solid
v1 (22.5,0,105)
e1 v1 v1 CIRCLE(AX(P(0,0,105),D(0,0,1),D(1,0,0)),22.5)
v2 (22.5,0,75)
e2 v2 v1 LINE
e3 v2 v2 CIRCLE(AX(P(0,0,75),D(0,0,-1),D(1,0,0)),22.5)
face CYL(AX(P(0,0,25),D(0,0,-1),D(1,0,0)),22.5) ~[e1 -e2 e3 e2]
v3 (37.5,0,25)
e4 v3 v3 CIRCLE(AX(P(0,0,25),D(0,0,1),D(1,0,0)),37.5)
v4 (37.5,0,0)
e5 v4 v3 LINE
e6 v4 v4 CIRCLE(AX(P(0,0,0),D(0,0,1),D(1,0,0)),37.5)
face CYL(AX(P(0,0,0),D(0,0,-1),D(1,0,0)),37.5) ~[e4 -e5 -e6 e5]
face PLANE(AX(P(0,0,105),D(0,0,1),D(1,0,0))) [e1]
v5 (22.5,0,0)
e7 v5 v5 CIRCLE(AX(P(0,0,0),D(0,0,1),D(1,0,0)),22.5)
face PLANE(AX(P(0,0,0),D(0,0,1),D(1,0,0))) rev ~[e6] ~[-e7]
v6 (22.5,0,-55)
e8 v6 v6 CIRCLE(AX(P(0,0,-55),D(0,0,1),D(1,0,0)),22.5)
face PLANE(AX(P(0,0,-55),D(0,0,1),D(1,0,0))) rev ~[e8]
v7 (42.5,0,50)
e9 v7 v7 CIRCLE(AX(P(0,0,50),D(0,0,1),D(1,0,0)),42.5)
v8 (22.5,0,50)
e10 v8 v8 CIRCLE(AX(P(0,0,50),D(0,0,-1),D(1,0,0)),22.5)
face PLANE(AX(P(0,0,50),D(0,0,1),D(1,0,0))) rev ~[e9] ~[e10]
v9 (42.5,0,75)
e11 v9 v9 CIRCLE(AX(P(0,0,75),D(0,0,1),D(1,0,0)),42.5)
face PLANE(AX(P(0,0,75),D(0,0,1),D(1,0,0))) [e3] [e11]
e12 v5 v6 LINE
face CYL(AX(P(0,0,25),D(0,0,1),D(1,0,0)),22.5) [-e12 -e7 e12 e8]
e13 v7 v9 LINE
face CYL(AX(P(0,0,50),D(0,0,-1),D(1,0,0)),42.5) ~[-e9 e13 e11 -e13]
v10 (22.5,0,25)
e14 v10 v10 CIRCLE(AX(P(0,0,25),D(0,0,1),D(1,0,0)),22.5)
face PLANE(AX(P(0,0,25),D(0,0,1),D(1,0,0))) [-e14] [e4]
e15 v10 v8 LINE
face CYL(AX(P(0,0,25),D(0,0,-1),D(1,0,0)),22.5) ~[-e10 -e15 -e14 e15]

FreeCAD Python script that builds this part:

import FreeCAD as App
import Part
import Sketcher

V = App.Vector

doc = App.newDocument("Part")
body = doc.addObject("PartDesign::Body", "Body")

sketch1 = doc.addObject("Sketcher::SketchObject", "Sketch")
body.addObject(sketch1)
sketch1.AttachmentSupport = (doc.XY_Plane, [""])
sketch1.MapMode = "FlatFace"
sketch1.addGeometry(Part.Circle(V(0, 0, 0), V(0, 0, 1), 38), False)
sketch1.addConstraint(Sketcher.Constraint("Coincident", 0, 3, -1, 1))
sketch1.addConstraint(Sketcher.Constraint("Diameter", 0, 75.0))
pad1 = doc.addObject("PartDesign::Pad", "Pad")
body.addObject(pad1)
pad1.Profile = sketch1
pad1.Length = 25

sketch2 = doc.addObject("Sketcher::SketchObject", "Sketch001")
body.addObject(sketch2)
sketch2.AttachmentSupport = (doc.XY_Plane, [""])
sketch2.MapMode = "FlatFace"
sketch2.AttachmentOffset = App.Placement(V(0, 0, 25), App.Rotation())
sketch2.addGeometry(Part.Circle(V(0, 0, 0), V(0, 0, 1), 22), False)
sketch2.addConstraint(Sketcher.Constraint("Coincident", 0, 3, -1, 1))
sketch2.addConstraint(Sketcher.Constraint("Diameter", 0, 45.0))
pad2 = doc.addObject("PartDesign::Pad", "Pad001")
body.addObject(pad2)
pad2.Profile = sketch2
pad2.Type = "TwoLengths"
pad2.Length = 80
pad2.Length2 = 80
pad2.Reversed = True

sketch3 = doc.addObject("Sketcher::SketchObject", "Sketch002")
body.addObject(sketch3)
sketch3.AttachmentSupport = (doc.XY_Plane, [""])
sketch3.MapMode = "FlatFace"
sketch3.AttachmentOffset = App.Placement(V(0, 0, 50), App.Rotation())
sketch3.addGeometry(Part.Circle(V(0, 0, 0), V(0, 0, 1), 42), False)
sketch3.addConstraint(Sketcher.Constraint("Coincident", 0, 3, -1, 1))
sketch3.addConstraint(Sketcher.Constraint("Diameter", 0, 85.0))
pad3 = doc.addObject("PartDesign::Pad", "Pad002")
body.addObject(pad3)
pad3.Profile = sketch3
pad3.Length = 25

doc.recompute()
